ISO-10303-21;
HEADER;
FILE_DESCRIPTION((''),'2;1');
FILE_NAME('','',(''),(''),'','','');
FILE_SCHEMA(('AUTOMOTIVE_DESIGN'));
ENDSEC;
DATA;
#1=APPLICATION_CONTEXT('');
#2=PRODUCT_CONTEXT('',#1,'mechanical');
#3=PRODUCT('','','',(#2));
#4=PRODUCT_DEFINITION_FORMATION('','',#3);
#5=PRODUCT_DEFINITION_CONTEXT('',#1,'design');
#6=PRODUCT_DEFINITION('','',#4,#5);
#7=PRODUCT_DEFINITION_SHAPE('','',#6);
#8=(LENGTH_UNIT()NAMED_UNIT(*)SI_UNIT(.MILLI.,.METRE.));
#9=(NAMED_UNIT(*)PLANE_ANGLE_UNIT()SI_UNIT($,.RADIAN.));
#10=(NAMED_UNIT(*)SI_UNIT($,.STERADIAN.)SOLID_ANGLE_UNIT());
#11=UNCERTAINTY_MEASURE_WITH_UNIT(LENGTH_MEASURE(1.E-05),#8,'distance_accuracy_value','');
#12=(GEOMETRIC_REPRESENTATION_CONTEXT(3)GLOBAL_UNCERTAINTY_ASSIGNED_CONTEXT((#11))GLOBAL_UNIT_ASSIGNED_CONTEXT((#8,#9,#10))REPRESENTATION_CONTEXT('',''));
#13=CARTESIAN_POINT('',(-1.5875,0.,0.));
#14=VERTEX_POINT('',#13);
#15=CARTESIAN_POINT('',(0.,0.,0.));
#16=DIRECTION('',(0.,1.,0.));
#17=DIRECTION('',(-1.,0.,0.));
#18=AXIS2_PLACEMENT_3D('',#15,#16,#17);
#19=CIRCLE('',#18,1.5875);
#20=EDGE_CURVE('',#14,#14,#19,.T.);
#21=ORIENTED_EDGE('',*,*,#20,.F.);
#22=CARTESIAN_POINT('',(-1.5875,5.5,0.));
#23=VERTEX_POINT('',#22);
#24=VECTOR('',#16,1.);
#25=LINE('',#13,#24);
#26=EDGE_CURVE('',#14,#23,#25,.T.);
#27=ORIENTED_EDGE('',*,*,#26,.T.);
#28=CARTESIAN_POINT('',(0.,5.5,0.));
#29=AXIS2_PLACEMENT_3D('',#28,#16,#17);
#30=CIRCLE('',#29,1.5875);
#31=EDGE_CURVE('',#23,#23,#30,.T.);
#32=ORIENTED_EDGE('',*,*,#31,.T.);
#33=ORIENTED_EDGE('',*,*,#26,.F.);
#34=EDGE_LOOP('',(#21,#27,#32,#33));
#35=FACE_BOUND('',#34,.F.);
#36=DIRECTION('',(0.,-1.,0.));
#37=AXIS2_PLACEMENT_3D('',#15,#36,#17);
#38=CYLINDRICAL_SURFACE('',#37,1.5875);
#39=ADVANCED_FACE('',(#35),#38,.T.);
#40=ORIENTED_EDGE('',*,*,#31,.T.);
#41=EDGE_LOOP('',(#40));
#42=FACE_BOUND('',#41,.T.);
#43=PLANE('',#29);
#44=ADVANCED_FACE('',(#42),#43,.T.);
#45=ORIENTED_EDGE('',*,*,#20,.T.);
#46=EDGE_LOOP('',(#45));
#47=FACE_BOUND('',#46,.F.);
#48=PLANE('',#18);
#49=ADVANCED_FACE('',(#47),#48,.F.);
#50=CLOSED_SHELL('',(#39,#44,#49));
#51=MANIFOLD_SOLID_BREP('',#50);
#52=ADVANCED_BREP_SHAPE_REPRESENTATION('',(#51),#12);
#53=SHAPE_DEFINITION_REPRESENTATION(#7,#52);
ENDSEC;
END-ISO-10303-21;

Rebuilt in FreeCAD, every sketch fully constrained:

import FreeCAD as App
import Part
import Sketcher

doc = App.newDocument("Part")
body = doc.addObject("PartDesign::Body", "Body")

sketch1 = body.newObject("Sketcher::SketchObject", "Sketch")
sketch1.AttachmentSupport = (doc.getObject("XZ_Plane"), [""])
sketch1.MapMode = "FlatFace"
sketch1.addGeometry(Part.Circle(App.Vector(0, 0, 0), App.Vector(0, 0, 1), 1.6), False)
sketch1.addConstraint([
    Sketcher.Constraint("Coincident", 0, 3, -1, 1),
    Sketcher.Constraint("Diameter", 0, 3.175),
])
pad1 = body.newObject("PartDesign::Pad", "Pad")
pad1.Profile = sketch1
pad1.Length = 5.5
pad1.Reversed = True

doc.recompute()
